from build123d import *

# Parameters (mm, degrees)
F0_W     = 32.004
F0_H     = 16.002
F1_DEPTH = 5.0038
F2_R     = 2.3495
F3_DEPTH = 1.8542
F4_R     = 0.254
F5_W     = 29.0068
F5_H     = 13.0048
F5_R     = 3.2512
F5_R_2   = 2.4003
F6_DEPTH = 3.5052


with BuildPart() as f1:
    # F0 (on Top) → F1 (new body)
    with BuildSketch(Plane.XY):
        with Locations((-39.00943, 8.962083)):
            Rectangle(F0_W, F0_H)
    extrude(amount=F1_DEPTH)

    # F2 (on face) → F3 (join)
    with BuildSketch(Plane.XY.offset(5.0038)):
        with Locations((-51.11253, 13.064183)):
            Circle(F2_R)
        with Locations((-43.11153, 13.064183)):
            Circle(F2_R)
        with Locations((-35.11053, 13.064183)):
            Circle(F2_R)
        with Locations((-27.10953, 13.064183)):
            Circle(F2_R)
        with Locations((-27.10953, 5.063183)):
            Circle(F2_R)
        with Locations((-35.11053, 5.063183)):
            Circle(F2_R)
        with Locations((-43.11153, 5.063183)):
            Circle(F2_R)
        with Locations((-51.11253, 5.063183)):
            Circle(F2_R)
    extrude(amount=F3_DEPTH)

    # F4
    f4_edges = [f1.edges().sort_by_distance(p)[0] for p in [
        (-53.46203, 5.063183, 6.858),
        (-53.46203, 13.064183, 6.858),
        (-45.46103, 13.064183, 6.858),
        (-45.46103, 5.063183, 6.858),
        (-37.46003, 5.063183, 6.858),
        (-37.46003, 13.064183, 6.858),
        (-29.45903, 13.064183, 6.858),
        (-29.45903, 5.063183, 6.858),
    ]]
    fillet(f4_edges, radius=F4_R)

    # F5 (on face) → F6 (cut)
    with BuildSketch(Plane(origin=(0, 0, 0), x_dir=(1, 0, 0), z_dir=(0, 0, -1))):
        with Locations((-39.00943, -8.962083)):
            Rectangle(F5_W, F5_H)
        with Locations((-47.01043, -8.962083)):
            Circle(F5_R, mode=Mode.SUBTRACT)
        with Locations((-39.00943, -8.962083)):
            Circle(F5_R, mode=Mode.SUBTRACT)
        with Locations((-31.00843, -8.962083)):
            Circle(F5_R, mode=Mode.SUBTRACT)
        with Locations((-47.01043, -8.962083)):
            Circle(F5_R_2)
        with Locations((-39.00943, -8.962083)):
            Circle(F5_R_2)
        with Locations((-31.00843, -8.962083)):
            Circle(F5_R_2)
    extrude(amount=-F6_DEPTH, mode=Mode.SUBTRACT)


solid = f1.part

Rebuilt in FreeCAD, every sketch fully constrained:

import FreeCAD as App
import Part
import Sketcher

V = App.Vector
Q = App.Units.Quantity


def edges_at(feature, points):
    """Names of the edges that pass closest to the given points."""
    edges = feature.Shape.Edges
    near = lambda p: min(range(len(edges)), key=lambda i: edges[i].distToShape(Part.Vertex(*p))[0])
    return sorted({f"Edge{near(p) + 1}" for p in points})


def add_polygon(sketch, points):
    """Adds a closed chain of lines whose ends are joined by coincident constraints."""
    first, n = sketch.GeometryCount, len(points)
    for a, b in zip(points, points[1:] + points[:1]):
        sketch.addGeometry(Part.LineSegment(App.Vector(*a, 0), App.Vector(*b, 0)), False)
    for i in range(n):
        sketch.addConstraint(Sketcher.Constraint("Coincident", first + i, 2, first + (i + 1) % n, 1))

doc = App.newDocument("Part")
body = doc.addObject("PartDesign::Body", "Body")

sketch1 = body.newObject("Sketcher::SketchObject", "Sketch")
sketch1.AttachmentSupport = (doc.getObject("XY_Plane"), [""])
sketch1.MapMode = "FlatFace"
add_polygon(sketch1, [(-55.01143, 16.963083), (-55.01143, 0.961083), (-23.00743, 0.961083), (-23.00743, 16.963083)])
sketch1.addConstraint([
    Sketcher.Constraint("Vertical", 0),
    Sketcher.Constraint("Horizontal", 1),
    Sketcher.Constraint("Vertical", 2),
    Sketcher.Constraint("Horizontal", 3),
    Sketcher.Constraint("DistanceX", 1, 1, 1, 2, Q("1.26 in")),
    Sketcher.Constraint("DistanceY", 0, 2, 0, 1, Q("0.63 in")),
    Sketcher.Constraint("DistanceX", 0, 2, -1, 1, 55.01143),
    Sketcher.Constraint("DistanceY", -1, 1, 0, 2, 0.961083),
])
pad1 = body.newObject("PartDesign::Pad", "Pad")
pad1.Profile = sketch1
pad1.Length = Q("0.197 in")

sketch2 = body.newObject("Sketcher::SketchObject", "Sketch001")
sketch2.AttachmentSupport = (doc.getObject("XY_Plane"), [""])
sketch2.MapMode = "FlatFace"
sketch2.AttachmentOffset = App.Placement(V(0, 0, 0.197 * 25.4), App.Rotation())
sketch2.addGeometry([
    Part.Circle(V(-51.11253, 13.064183, 0), V(0, 0, 1), 2.3495),
    Part.Circle(V(-43.11153, 13.064183, 0), V(0, 0, 1), 2.3495),
    Part.Circle(V(-35.11053, 13.064183, 0), V(0, 0, 1), 2.3495),
    Part.Circle(V(-27.10953, 13.064183, 0), V(0, 0, 1), 2.3495),
    Part.Circle(V(-27.10953, 5.063183, 0), V(0, 0, 1), 2.3495),
    Part.Circle(V(-35.11053, 5.063183, 0), V(0, 0, 1), 2.3495),
    Part.Circle(V(-43.11153, 5.063183, 0), V(0, 0, 1), 2.3495),
    Part.Circle(V(-51.11253, 5.063183, 0), V(0, 0, 1), 2.3495),
], False)
sketch2.addConstraint([
    Sketcher.Constraint("Equal", 0, 1),
    Sketcher.Constraint("Equal", 1, 2),
    Sketcher.Constraint("Equal", 2, 3),
    Sketcher.Constraint("Equal", 3, 4),
    Sketcher.Constraint("Equal", 4, 5),
    Sketcher.Constraint("Equal", 5, 6),
    Sketcher.Constraint("Equal", 6, 7),
    Sketcher.Constraint("Horizontal", 0, 3, 1, 3),
    Sketcher.Constraint("Horizontal", 1, 3, 2, 3),
    Sketcher.Constraint("Horizontal", 2, 3, 3, 3),
    Sketcher.Constraint("Horizontal", 4, 3, 5, 3),
    Sketcher.Constraint("Horizontal", 5, 3, 6, 3),
    Sketcher.Constraint("Horizontal", 6, 3, 7, 3),
    Sketcher.Constraint("Vertical", 3, 3, 4, 3),
    Sketcher.Constraint("Vertical", 2, 3, 5, 3),
    Sketcher.Constraint("Vertical", 1, 3, 6, 3),
    Sketcher.Constraint("Vertical", 0, 3, 7, 3),
    Sketcher.Constraint("Diameter", 0, Q("0.185 in")),
    Sketcher.Constraint("DistanceX", 0, 3, 2, 3, Q("0.63 in")),
    Sketcher.Constraint("DistanceX", 1, 3, 3, 3, Q("0.63 in")),
    Sketcher.Constraint("DistanceX", 0, 3, 1, 3, Q("0.315 in")),
    Sketcher.Constraint("DistanceY", 4, 3, 3, 3, Q("0.315 in")),
    Sketcher.Constraint("DistanceX", 0, 3, -1, 1, 51.11253),
    Sketcher.Constraint("DistanceY", -1, 1, 0, 3, 13.064183),
])
pad2 = body.newObject("PartDesign::Pad", "Pad001")
pad2.Profile = sketch2
pad2.Length = Q("0.073 in")
doc.recompute()

fillet = body.newObject("PartDesign::Fillet", "Fillet")
fillet.Base = (pad2, edges_at(pad2, [
    (-53.462, 5.063, 6.858),
    (-53.462, 13.064, 6.858),
    (-45.461, 13.064, 6.858),
    (-45.461, 5.063, 6.858),
    (-37.46, 5.063, 6.858),
    (-37.46, 13.064, 6.858),
    (-29.459, 13.064, 6.858),
    (-29.459, 5.063, 6.858),
]))
fillet.Radius = Q("0.01 in")

sketch3 = body.newObject("Sketcher::SketchObject", "Sketch002")
sketch3.AttachmentSupport = (doc.getObject("XY_Plane"), [""])
sketch3.MapMode = "FlatFace"
add_polygon(sketch3, [(-53.51283, 2.459683), (-53.51283, 15.464483), (-24.50603, 15.464483), (-24.50603, 2.459683)])
sketch3.addGeometry(Part.Circle(V(-47.01043, 8.962083, 0), V(0, 0, 1), 3.2512), False)
sketch3.addGeometry(Part.Circle(V(-39.00943, 8.962083, 0), V(0, 0, 1), 3.2512), False)
sketch3.addGeometry(Part.Circle(V(-31.00843, 8.962083, 0), V(0, 0, 1), 3.2512), False)
sketch3.addGeometry(Part.Circle(V(-47.01043, 8.962083, 0), V(0, 0, 1), 2.4003), False)
sketch3.addGeometry(Part.Circle(V(-39.00943, 8.962083, 0), V(0, 0, 1), 2.4003), False)
sketch3.addGeometry(Part.Circle(V(-31.00843, 8.962083, 0), V(0, 0, 1), 2.4003), False)
sketch3.addConstraint([
    Sketcher.Constraint("Vertical", 0),
    Sketcher.Constraint("Horizontal", 1),
    Sketcher.Constraint("Vertical", 2),
    Sketcher.Constraint("Horizontal", 3),
    Sketcher.Constraint("Coincident", 7, 3, 4, 3),
    Sketcher.Constraint("Coincident", 8, 3, 5, 3),
    Sketcher.Constraint("Coincident", 9, 3, 6, 3),
    Sketcher.Constraint("Equal", 4, 5),
    Sketcher.Constraint("Equal", 5, 6),
    Sketcher.Constraint("Equal", 7, 8),
    Sketcher.Constraint("Equal", 8, 9),
    Sketcher.Constraint("Horizontal", 4, 3, 5, 3),
    Sketcher.Constraint("Horizontal", 5, 3, 6, 3),
    Sketcher.Constraint("Diameter", 4, Q("0.256 in")),
    Sketcher.Constraint("Diameter", 7, Q("0.189 in")),
    Sketcher.Constraint("DistanceX", 1, 1, 1, 2, Q("1.142 in")),
    Sketcher.Constraint("DistanceY", 0, 1, 0, 2, Q("0.512 in")),
    Sketcher.Constraint("DistanceX", 4, 3, 6, 3, Q("0.63 in")),
    Sketcher.Constraint("DistanceX", 4, 3, 5, 3, Q("0.315 in")),
    Sketcher.Constraint("DistanceX", 0, 2, 4, 3, Q("0.256 in")),
    Sketcher.Constraint("DistanceY", 4, 3, 0, 2, Q("0.256 in")),
    Sketcher.Constraint("DistanceX", 4, 3, -1, 1, 47.01043),
    Sketcher.Constraint("DistanceY", -1, 1, 4, 3, 8.962083),
])
pocket1 = body.newObject("PartDesign::Pocket", "Pocket")
pocket1.Profile = sketch3
pocket1.Length = Q("0.138 in")
pocket1.Reversed = True

doc.recompute()
